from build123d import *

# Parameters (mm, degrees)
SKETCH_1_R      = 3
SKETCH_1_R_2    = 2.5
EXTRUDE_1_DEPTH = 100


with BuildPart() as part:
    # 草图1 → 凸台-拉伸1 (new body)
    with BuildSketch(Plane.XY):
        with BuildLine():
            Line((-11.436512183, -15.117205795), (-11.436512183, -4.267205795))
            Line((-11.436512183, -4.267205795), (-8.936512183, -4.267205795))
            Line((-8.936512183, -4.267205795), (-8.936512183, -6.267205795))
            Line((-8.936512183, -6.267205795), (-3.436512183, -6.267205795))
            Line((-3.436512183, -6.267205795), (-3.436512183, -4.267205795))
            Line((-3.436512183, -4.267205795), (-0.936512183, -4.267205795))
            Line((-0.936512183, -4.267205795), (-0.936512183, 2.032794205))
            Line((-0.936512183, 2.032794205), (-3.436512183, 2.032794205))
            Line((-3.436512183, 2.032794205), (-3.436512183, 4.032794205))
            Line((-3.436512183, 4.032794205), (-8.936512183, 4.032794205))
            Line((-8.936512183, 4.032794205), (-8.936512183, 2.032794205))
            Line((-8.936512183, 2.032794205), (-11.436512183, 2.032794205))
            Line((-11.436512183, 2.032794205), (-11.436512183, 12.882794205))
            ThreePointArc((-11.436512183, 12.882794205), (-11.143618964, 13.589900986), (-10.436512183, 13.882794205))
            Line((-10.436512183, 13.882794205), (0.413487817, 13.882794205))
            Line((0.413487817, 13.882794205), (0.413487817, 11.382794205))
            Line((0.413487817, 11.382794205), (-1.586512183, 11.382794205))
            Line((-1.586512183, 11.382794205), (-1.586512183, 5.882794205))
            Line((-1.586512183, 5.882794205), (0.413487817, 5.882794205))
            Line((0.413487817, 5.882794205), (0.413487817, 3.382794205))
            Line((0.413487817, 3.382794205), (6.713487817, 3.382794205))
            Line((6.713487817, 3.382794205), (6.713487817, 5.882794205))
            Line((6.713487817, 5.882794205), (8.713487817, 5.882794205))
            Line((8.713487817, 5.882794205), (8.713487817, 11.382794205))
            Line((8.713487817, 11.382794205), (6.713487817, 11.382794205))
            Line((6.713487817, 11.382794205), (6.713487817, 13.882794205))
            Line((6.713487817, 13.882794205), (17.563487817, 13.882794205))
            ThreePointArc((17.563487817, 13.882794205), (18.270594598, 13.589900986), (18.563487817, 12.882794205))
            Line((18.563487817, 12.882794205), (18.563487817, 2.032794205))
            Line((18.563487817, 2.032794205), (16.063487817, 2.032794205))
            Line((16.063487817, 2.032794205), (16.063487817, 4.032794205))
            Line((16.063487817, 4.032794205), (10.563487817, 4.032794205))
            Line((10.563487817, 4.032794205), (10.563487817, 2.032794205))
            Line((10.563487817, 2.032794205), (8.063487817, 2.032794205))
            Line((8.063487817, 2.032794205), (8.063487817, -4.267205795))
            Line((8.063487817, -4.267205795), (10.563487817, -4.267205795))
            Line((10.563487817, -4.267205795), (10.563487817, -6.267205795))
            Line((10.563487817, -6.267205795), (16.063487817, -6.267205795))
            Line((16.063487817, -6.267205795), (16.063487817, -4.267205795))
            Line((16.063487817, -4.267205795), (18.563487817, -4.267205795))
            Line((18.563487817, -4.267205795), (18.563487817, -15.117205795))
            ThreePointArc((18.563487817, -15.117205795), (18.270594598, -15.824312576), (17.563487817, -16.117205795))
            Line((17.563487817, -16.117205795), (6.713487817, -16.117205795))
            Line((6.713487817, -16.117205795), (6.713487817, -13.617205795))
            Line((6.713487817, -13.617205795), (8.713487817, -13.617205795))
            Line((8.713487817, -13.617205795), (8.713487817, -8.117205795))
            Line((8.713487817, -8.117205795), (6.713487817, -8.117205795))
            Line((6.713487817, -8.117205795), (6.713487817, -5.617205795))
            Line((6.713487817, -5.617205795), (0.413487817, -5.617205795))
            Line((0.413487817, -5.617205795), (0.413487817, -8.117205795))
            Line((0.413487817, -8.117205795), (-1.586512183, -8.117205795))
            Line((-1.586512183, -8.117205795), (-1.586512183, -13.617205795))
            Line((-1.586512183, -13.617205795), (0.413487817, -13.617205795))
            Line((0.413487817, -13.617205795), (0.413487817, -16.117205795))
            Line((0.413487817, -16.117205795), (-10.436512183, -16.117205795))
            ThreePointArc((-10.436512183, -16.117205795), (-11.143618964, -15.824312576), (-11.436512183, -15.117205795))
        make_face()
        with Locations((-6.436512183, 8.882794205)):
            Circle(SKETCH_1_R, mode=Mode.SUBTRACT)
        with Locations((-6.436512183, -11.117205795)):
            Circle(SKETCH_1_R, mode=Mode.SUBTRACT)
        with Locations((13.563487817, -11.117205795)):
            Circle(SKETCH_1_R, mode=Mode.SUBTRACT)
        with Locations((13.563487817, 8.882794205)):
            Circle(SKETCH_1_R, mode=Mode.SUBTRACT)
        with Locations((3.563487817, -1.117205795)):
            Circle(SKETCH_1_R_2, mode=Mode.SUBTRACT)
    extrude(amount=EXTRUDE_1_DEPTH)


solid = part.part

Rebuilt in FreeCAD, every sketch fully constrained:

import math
import FreeCAD as App
import Part
import Sketcher

V = App.Vector

doc = App.newDocument("Part")
body = doc.addObject("PartDesign::Body", "Body")

sketch1 = body.newObject("Sketcher::SketchObject", "Sketch")
sketch1.AttachmentSupport = (doc.getObject("XY_Plane"), [""])
sketch1.MapMode = "FlatFace"
sketch1.addGeometry([
    Part.LineSegment(V(-11.4, -4.3, 0), V(-11.4, -15.1, 0)),
    Part.ArcOfCircle(Part.Circle(V(-10.4, -15.1, 0), V(0, 0, 1), 1), math.radians(-180), math.radians(-90)),
    Part.LineSegment(V(-10.4, -16.1, 0), V(0.4, -16.1, 0)),
    Part.LineSegment(V(0.4, -16.1, 0), V(0.4, -13.6, 0)),
    Part.LineSegment(V(0.4, -13.6, 0), V(-1.6, -13.6, 0)),
    Part.LineSegment(V(-1.6, -13.6, 0), V(-1.6, -8.1, 0)),
    Part.LineSegment(V(-1.6, -8.1, 0), V(0.4, -8.1, 0)),
    Part.LineSegment(V(0.4, -8.1, 0), V(0.4, -5.6, 0)),
    Part.LineSegment(V(0.4, -5.6, 0), V(6.7, -5.6, 0)),
    Part.LineSegment(V(6.7, -5.6, 0), V(6.7, -8.1, 0)),
    Part.LineSegment(V(6.7, -8.1, 0), V(8.7, -8.1, 0)),
    Part.LineSegment(V(8.7, -8.1, 0), V(8.7, -13.6, 0)),
    Part.LineSegment(V(8.7, -13.6, 0), V(6.7, -13.6, 0)),
    Part.LineSegment(V(6.7, -13.6, 0), V(6.7, -16.1, 0)),
    Part.LineSegment(V(6.7, -16.1, 0), V(17.6, -16.1, 0)),
    Part.ArcOfCircle(Part.Circle(V(17.6, -15.1, 0), V(0, 0, 1), 1), math.radians(-90), math.radians(0)),
    Part.LineSegment(V(18.6, -15.1, 0), V(18.6, -4.3, 0)),
    Part.LineSegment(V(18.6, -4.3, 0), V(16.1, -4.3, 0)),
    Part.LineSegment(V(16.1, -4.3, 0), V(16.1, -6.3, 0)),
    Part.LineSegment(V(16.1, -6.3, 0), V(10.6, -6.3, 0)),
    Part.LineSegment(V(10.6, -6.3, 0), V(10.6, -4.3, 0)),
    Part.LineSegment(V(10.6, -4.3, 0), V(8.1, -4.3, 0)),
    Part.LineSegment(V(8.1, -4.3, 0), V(8.1, 2, 0)),
    Part.LineSegment(V(8.1, 2, 0), V(10.6, 2, 0)),
    Part.LineSegment(V(10.6, 2, 0), V(10.6, 4, 0)),
    Part.LineSegment(V(10.6, 4, 0), V(16.1, 4, 0)),
    Part.LineSegment(V(16.1, 4, 0), V(16.1, 2, 0)),
    Part.LineSegment(V(16.1, 2, 0), V(18.6, 2, 0)),
    Part.LineSegment(V(18.6, 2, 0), V(18.6, 12.9, 0)),
    Part.ArcOfCircle(Part.Circle(V(17.6, 12.9, 0), V(0, 0, 1), 1), math.radians(0), math.radians(90)),
    Part.LineSegment(V(17.6, 13.9, 0), V(6.7, 13.9, 0)),
    Part.LineSegment(V(6.7, 13.9, 0), V(6.7, 11.4, 0)),
    Part.LineSegment(V(6.7, 11.4, 0), V(8.7, 11.4, 0)),
    Part.LineSegment(V(8.7, 11.4, 0), V(8.7, 5.9, 0)),
    Part.LineSegment(V(8.7, 5.9, 0), V(6.7, 5.9, 0)),
    Part.LineSegment(V(6.7, 5.9, 0), V(6.7, 3.4, 0)),
    Part.LineSegment(V(6.7, 3.4, 0), V(0.4, 3.4, 0)),
    Part.LineSegment(V(0.4, 3.4, 0), V(0.4, 5.9, 0)),
    Part.LineSegment(V(0.4, 5.9, 0), V(-1.6, 5.9, 0)),
    Part.LineSegment(V(-1.6, 5.9, 0), V(-1.6, 11.4, 0)),
    Part.LineSegment(V(-1.6, 11.4, 0), V(0.4, 11.4, 0)),
    Part.LineSegment(V(0.4, 11.4, 0), V(0.4, 13.9, 0)),
    Part.LineSegment(V(0.4, 13.9, 0), V(-10.4, 13.9, 0)),
    Part.ArcOfCircle(Part.Circle(V(-10.4, 12.9, 0), V(0, 0, 1), 1), math.radians(90), math.radians(180)),
    Part.LineSegment(V(-11.4, 12.9, 0), V(-11.4, 2, 0)),
    Part.LineSegment(V(-11.4, 2, 0), V(-8.9, 2, 0)),
    Part.LineSegment(V(-8.9, 2, 0), V(-8.9, 4, 0)),
    Part.LineSegment(V(-8.9, 4, 0), V(-3.4, 4, 0)),
    Part.LineSegment(V(-3.4, 4, 0), V(-3.4, 2, 0)),
    Part.LineSegment(V(-3.4, 2, 0), V(-0.9, 2, 0)),
    Part.LineSegment(V(-0.9, 2, 0), V(-0.9, -4.3, 0)),
    Part.LineSegment(V(-0.9, -4.3, 0), V(-3.4, -4.3, 0)),
    Part.LineSegment(V(-3.4, -4.3, 0), V(-3.4, -6.3, 0)),
    Part.LineSegment(V(-3.4, -6.3, 0), V(-8.9, -6.3, 0)),
    Part.LineSegment(V(-8.9, -6.3, 0), V(-8.9, -4.3, 0)),
    Part.LineSegment(V(-8.9, -4.3, 0), V(-11.4, -4.3, 0)),
    Part.Circle(V(13.6, -11.1, 0), V(0, 0, 1), 3),
    Part.Circle(V(-6.4, -11.1, 0), V(0, 0, 1), 3),
    Part.Circle(V(13.6, 8.9, 0), V(0, 0, 1), 3),
    Part.Circle(V(3.6, -1.1, 0), V(0, 0, 1), 2.5),
    Part.Circle(V(-6.4, 8.9, 0), V(0, 0, 1), 3),
], False)
sketch1.addConstraint([
    Sketcher.Constraint("Tangent", 0, 2, 1, 1),
    Sketcher.Constraint("Tangent", 1, 2, 2, 1),
    Sketcher.Constraint("Coincident", 2, 2, 3, 1),
    Sketcher.Constraint("Coincident", 3, 2, 4, 1),
    Sketcher.Constraint("Coincident", 4, 2, 5, 1),
    Sketcher.Constraint("Coincident", 5, 2, 6, 1),
    Sketcher.Constraint("Coincident", 6, 2, 7, 1),
    Sketcher.Constraint("Coincident", 7, 2, 8, 1),
    Sketcher.Constraint("Coincident", 8, 2, 9, 1),
    Sketcher.Constraint("Coincident", 9, 2, 10, 1),
    Sketcher.Constraint("Coincident", 10, 2, 11, 1),
    Sketcher.Constraint("Coincident", 11, 2, 12, 1),
    Sketcher.Constraint("Coincident", 12, 2, 13, 1),
    Sketcher.Constraint("Coincident", 13, 2, 14, 1),
    Sketcher.Constraint("Tangent", 14, 2, 15, 1),
    Sketcher.Constraint("Tangent", 15, 2, 16, 1),
    Sketcher.Constraint("Coincident", 16, 2, 17, 1),
    Sketcher.Constraint("Coincident", 17, 2, 18, 1),
    Sketcher.Constraint("Coincident", 18, 2, 19, 1),
    Sketcher.Constraint("Coincident", 19, 2, 20, 1),
    Sketcher.Constraint("Coincident", 20, 2, 21, 1),
    Sketcher.Constraint("Coincident", 21, 2, 22, 1),
    Sketcher.Constraint("Coincident", 22, 2, 23, 1),
    Sketcher.Constraint("Coincident", 23, 2, 24, 1),
    Sketcher.Constraint("Coincident", 24, 2, 25, 1),
    Sketcher.Constraint("Coincident", 25, 2, 26, 1),
    Sketcher.Constraint("Coincident", 26, 2, 27, 1),
    Sketcher.Constraint("Coincident", 27, 2, 28, 1),
    Sketcher.Constraint("Tangent", 28, 2, 29, 1),
    Sketcher.Constraint("Tangent", 29, 2, 30, 1),
    Sketcher.Constraint("Coincident", 30, 2, 31, 1),
    Sketcher.Constraint("Coincident", 31, 2, 32, 1),
    Sketcher.Constraint("Coincident", 32, 2, 33, 1),
    Sketcher.Constraint("Coincident", 33, 2, 34, 1),
    Sketcher.Constraint("Coincident", 34, 2, 35, 1),
    Sketcher.Constraint("Coincident", 35, 2, 36, 1),
    Sketcher.Constraint("Coincident", 36, 2, 37, 1),
    Sketcher.Constraint("Coincident", 37, 2, 38, 1),
    Sketcher.Constraint("Coincident", 38, 2, 39, 1),
    Sketcher.Constraint("Coincident", 39, 2, 40, 1),
    Sketcher.Constraint("Coincident", 40, 2, 41, 1),
    Sketcher.Constraint("Coincident", 41, 2, 42, 1),
    Sketcher.Constraint("Tangent", 42, 2, 43, 1),
    Sketcher.Constraint("Tangent", 43, 2, 44, 1),
    Sketcher.Constraint("Coincident", 44, 2, 45, 1),
    Sketcher.Constraint("Coincident", 45, 2, 46, 1),
    Sketcher.Constraint("Coincident", 46, 2, 47, 1),
    Sketcher.Constraint("Coincident", 47, 2, 48, 1),
    Sketcher.Constraint("Coincident", 48, 2, 49, 1),
    Sketcher.Constraint("Coincident", 49, 2, 50, 1),
    Sketcher.Constraint("Coincident", 50, 2, 51, 1),
    Sketcher.Constraint("Coincident", 51, 2, 52, 1),
    Sketcher.Constraint("Coincident", 52, 2, 53, 1),
    Sketcher.Constraint("Coincident", 53, 2, 54, 1),
    Sketcher.Constraint("Coincident", 54, 2, 55, 1),
    Sketcher.Constraint("Coincident", 55, 2, 0, 1),
    Sketcher.Constraint("Vertical", 0),
    Sketcher.Constraint("Horizontal", 2),
    Sketcher.Constraint("Vertical", 3),
    Sketcher.Constraint("Horizontal", 4),
    Sketcher.Constraint("Vertical", 5),
    Sketcher.Constraint("Horizontal", 6),
    Sketcher.Constraint("Vertical", 7),
    Sketcher.Constraint("Horizontal", 8),
    Sketcher.Constraint("Vertical", 9),
    Sketcher.Constraint("Horizontal", 10),
    Sketcher.Constraint("Vertical", 11),
    Sketcher.Constraint("Horizontal", 12),
    Sketcher.Constraint("Vertical", 13),
    Sketcher.Constraint("Horizontal", 14),
    Sketcher.Constraint("Vertical", 16),
    Sketcher.Constraint("Horizontal", 17),
    Sketcher.Constraint("Vertical", 18),
    Sketcher.Constraint("Horizontal", 19),
    Sketcher.Constraint("Vertical", 20),
    Sketcher.Constraint("Horizontal", 21),
    Sketcher.Constraint("Vertical", 22),
    Sketcher.Constraint("Horizontal", 23),
    Sketcher.Constraint("Vertical", 24),
    Sketcher.Constraint("Horizontal", 25),
    Sketcher.Constraint("Vertical", 26),
    Sketcher.Constraint("Horizontal", 27),
    Sketcher.Constraint("Vertical", 28),
    Sketcher.Constraint("Horizontal", 30),
    Sketcher.Constraint("Vertical", 31),
    Sketcher.Constraint("Horizontal", 32),
    Sketcher.Constraint("Vertical", 33),
    Sketcher.Constraint("Horizontal", 34),
    Sketcher.Constraint("Vertical", 35),
    Sketcher.Constraint("Horizontal", 36),
    Sketcher.Constraint("Vertical", 37),
    Sketcher.Constraint("Horizontal", 38),
    Sketcher.Constraint("Vertical", 39),
    Sketcher.Constraint("Horizontal", 40),
    Sketcher.Constraint("Vertical", 41),
    Sketcher.Constraint("Horizontal", 42),
    Sketcher.Constraint("Vertical", 44),
    Sketcher.Constraint("Horizontal", 45),
    Sketcher.Constraint("Vertical", 46),
    Sketcher.Constraint("Horizontal", 47),
    Sketcher.Constraint("Vertical", 48),
    Sketcher.Constraint("Horizontal", 49),
    Sketcher.Constraint("Vertical", 50),
    Sketcher.Constraint("Horizontal", 51),
    Sketcher.Constraint("Vertical", 52),
    Sketcher.Constraint("Horizontal", 53),
    Sketcher.Constraint("Vertical", 54),
    Sketcher.Constraint("Horizontal", 55),
    Sketcher.Constraint("Equal", 1, 15),
    Sketcher.Constraint("Equal", 15, 29),
    Sketcher.Constraint("Equal", 29, 43),
    Sketcher.Constraint("Equal", 56, 57),
    Sketcher.Constraint("Equal", 57, 58),
    Sketcher.Constraint("Equal", 58, 60),
    Sketcher.Constraint("Horizontal", 1, 3, 15, 3),
    Sketcher.Constraint("Horizontal", 29, 3, 43, 3),
    Sketcher.Constraint("Horizontal", 56, 3, 57, 3),
    Sketcher.Constraint("Horizontal", 58, 3, 60, 3),
    Sketcher.Constraint("Horizontal", 6, 2, 9, 2),
    Sketcher.Constraint("Horizontal", 4, 2, 11, 2),
    Sketcher.Constraint("Horizontal", 17, 2, 20, 2),
    Sketcher.Constraint("Horizontal", 23, 2, 26, 2),
    Sketcher.Constraint("Horizontal", 34, 2, 37, 2),
    Sketcher.Constraint("Horizontal", 32, 2, 39, 2),
    Sketcher.Constraint("Horizontal", 27, 2, 44, 2),
    Sketcher.Constraint("Horizontal", 25, 2, 46, 2),
    Sketcher.Constraint("Horizontal", 45, 2, 48, 2),
    Sketcher.Constraint("Horizontal", 21, 2, 50, 2),
    Sketcher.Constraint("Horizontal", 19, 2, 52, 2),
    Sketcher.Constraint("Horizontal", 51, 2, 54, 2),
    Sketcher.Constraint("Vertical", 15, 3, 29, 3),
    Sketcher.Constraint("Vertical", 1, 3, 43, 3),
    Sketcher.Constraint("Vertical", 56, 3, 58, 3),
    Sketcher.Constraint("Vertical", 57, 3, 60, 3),
    Sketcher.Constraint("Vertical", 3, 2, 6, 2),
    Sketcher.Constraint("Vertical", 9, 2, 12, 2),
    Sketcher.Constraint("Vertical", 20, 2, 23, 2),
    Sketcher.Constraint("Vertical", 18, 2, 25, 2),
    Sketcher.Constraint("Vertical", 13, 2, 30, 2),
    Sketcher.Constraint("Vertical", 11, 2, 32, 2),
    Sketcher.Constraint("Vertical", 31, 2, 34, 2),
    Sketcher.Constraint("Vertical", 7, 2, 36, 2),
    Sketcher.Constraint("Vertical", 5, 2, 38, 2),
    Sketcher.Constraint("Vertical", 37, 2, 40, 2),
    Sketcher.Constraint("Vertical", 48, 2, 51, 2),
    Sketcher.Constraint("Vertical", 46, 2, 53, 2),
    Sketcher.Constraint("Equal", 6, 10),
    Sketcher.Constraint("Equal", 2, 14),
    Sketcher.Constraint("Equal", 17, 21),
    Sketcher.Constraint("Equal", 27, 45),
    Sketcher.Constraint("Equal", 25, 47),
    Sketcher.Constraint("Equal", 45, 49),
    Sketcher.Constraint("Equal", 42, 0),
    Sketcher.Constraint("Equal", 55, 3),
    Sketcher.Constraint("Equal", 53, 5),
    Sketcher.Constraint("Equal", 3, 7),
    Sketcher.Constraint("Equal", 40, 18),
    Sketcher.Constraint("Equal", 36, 22),
    Sketcher.Constraint("Equal", 20, 24),
    Sketcher.Constraint("Equal", 16, 28),
    Sketcher.Constraint("Equal", 13, 31),
    Sketcher.Constraint("Equal", 11, 33),
    Sketcher.Constraint("Equal", 31, 35),
    Sketcher.Constraint("Diameter", 56, 6.0),
    Sketcher.Constraint("Diameter", 59, 5.0),
    Sketcher.Constraint("Radius", 1, 1.0),
    Sketcher.Constraint("DistanceX", 4, 2, 4, 1, 2.0),
    Sketcher.Constraint("DistanceX", 8, 1, 8, 2, 6.3),
    Sketcher.Constraint("DistanceX", 17, 2, 17, 1, 2.5),
    Sketcher.Constraint("DistanceX", 19, 2, 19, 1, 5.5),
    Sketcher.Constraint("DistanceX", 2, 1, 2, 2, 10.85),
    Sketcher.Constraint("DistanceX", 1, 3, -1, 1, 10.436512),
    Sketcher.Constraint("DistanceY", 1, 3, -1, 1, 15.117206),
    Sketcher.Constraint("DistanceX", -1, 1, 56, 3, 13.563488),
    Sketcher.Constraint("DistanceY", 56, 3, -1, 1, 11.117206),
    Sketcher.Constraint("DistanceX", 57, 3, -1, 1, 6.436512),
    Sketcher.Constraint("DistanceY", -1, 1, 58, 3, 8.882794),
    Sketcher.Constraint("DistanceX", -1, 1, 59, 3, 3.563488),
    Sketcher.Constraint("DistanceY", 59, 3, -1, 1, 1.117206),
])
pad1 = body.newObject("PartDesign::Pad", "Pad")
pad1.Profile = sketch1
pad1.Length = 100

doc.recompute()
